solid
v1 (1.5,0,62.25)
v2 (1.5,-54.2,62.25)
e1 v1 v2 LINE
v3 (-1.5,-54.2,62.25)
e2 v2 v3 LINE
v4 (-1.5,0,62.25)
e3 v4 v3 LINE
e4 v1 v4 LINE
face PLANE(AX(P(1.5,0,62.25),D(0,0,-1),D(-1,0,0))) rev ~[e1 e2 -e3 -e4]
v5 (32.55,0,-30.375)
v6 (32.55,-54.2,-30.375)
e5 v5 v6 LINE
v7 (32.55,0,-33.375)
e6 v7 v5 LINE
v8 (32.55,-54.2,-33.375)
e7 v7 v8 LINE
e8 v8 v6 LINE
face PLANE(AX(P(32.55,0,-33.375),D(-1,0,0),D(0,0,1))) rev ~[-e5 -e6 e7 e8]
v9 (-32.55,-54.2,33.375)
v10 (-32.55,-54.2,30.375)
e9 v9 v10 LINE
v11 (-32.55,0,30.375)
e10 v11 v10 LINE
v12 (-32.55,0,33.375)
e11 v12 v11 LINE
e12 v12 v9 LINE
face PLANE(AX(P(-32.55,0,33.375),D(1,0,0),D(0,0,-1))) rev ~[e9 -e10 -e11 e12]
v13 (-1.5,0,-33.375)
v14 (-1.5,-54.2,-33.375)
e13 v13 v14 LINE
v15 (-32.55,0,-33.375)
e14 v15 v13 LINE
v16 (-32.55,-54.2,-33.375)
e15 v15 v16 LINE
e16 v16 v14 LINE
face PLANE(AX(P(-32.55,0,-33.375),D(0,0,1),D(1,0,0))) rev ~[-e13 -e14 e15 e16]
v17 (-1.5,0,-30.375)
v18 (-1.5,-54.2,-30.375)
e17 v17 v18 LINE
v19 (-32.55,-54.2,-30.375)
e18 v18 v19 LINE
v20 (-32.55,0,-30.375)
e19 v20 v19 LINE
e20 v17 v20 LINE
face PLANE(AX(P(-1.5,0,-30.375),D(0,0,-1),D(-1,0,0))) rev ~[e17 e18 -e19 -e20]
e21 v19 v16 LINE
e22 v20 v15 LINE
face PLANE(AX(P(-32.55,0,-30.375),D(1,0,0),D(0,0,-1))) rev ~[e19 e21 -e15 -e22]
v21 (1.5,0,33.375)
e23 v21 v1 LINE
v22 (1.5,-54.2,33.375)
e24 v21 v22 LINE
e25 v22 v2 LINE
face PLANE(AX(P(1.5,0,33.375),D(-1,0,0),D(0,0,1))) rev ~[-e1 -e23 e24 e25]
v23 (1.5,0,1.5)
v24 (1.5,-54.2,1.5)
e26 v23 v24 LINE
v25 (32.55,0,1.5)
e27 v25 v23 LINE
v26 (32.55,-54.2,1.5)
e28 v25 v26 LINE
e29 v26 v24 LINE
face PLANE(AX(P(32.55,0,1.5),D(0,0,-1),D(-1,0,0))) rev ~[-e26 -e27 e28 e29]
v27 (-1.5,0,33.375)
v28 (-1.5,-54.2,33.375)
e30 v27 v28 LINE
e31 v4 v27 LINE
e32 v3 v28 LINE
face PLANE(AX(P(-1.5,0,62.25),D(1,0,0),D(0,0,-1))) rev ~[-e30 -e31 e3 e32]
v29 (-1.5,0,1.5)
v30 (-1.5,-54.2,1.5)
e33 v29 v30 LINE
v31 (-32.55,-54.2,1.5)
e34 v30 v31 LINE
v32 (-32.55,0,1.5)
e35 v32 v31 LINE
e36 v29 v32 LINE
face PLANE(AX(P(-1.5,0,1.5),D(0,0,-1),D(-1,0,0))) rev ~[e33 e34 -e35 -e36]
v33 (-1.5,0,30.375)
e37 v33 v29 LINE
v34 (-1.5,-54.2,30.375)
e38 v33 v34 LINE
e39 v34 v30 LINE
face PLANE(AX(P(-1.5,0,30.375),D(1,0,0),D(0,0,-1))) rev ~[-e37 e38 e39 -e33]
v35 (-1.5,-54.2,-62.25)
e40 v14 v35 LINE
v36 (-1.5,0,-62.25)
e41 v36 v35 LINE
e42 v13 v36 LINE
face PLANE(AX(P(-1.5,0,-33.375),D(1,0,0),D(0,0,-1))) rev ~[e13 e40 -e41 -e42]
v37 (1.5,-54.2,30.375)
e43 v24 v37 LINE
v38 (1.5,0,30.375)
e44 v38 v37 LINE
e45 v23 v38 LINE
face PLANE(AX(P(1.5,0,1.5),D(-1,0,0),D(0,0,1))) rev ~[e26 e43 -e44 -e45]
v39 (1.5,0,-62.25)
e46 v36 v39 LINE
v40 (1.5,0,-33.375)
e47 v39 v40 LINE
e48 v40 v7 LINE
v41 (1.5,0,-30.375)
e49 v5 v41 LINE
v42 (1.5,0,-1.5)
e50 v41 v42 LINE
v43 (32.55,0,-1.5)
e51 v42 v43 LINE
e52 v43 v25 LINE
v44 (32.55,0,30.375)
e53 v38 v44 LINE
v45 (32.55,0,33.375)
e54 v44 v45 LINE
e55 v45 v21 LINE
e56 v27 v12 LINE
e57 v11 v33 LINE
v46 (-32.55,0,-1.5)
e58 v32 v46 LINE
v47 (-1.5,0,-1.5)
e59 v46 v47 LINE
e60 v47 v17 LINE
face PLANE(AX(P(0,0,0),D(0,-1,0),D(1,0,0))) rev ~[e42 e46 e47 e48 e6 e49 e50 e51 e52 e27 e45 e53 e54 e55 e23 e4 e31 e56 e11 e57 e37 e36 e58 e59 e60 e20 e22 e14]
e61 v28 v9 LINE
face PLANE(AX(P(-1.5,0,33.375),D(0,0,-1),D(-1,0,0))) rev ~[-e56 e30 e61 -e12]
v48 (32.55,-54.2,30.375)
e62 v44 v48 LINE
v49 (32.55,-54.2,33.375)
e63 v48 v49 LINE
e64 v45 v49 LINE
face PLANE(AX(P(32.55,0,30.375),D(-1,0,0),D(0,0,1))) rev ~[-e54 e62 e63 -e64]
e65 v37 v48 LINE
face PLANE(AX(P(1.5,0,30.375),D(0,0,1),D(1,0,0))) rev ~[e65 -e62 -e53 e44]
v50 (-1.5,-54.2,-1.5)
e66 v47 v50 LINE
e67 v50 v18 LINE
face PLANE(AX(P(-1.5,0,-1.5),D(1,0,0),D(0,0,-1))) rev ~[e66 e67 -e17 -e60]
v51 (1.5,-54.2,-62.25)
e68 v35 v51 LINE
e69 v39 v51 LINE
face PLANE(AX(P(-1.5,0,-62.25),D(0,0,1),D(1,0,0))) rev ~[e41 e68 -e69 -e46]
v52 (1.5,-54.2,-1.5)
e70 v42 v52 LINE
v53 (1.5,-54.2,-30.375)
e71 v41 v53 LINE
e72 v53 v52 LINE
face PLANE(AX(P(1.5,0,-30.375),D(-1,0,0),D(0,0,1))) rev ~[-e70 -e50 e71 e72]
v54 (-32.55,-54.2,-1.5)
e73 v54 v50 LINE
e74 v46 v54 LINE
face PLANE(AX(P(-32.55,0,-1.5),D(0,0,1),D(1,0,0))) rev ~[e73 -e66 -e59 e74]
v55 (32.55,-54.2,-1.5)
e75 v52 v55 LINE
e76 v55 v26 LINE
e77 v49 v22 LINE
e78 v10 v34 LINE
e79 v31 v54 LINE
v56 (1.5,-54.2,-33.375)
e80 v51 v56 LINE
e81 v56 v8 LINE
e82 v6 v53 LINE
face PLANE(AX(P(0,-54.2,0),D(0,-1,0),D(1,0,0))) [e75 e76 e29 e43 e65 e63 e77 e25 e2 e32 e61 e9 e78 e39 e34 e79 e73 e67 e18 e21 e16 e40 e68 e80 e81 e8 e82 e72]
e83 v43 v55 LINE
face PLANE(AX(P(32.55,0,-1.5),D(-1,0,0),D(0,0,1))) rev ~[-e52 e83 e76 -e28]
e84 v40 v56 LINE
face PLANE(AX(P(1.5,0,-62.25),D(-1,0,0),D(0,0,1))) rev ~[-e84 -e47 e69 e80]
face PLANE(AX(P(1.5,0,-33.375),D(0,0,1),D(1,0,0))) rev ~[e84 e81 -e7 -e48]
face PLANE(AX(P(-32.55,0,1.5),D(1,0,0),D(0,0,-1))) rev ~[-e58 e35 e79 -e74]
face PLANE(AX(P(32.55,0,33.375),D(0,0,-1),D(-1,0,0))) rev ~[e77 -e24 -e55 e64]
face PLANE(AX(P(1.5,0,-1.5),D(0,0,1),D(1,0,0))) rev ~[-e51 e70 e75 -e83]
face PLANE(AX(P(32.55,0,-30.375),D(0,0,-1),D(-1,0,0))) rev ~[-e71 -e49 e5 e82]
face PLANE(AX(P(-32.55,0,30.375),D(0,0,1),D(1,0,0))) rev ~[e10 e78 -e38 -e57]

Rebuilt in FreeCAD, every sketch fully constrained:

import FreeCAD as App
import Part
import Sketcher

doc = App.newDocument("Part")
body = doc.addObject("PartDesign::Body", "Body")

# Sketch on XZ plane
sketch1 = body.newObject("Sketcher::SketchObject", "Sketch")
sketch1.AttachmentSupport = (doc.getObject("XZ_Plane"), [""])
sketch1.MapMode = "FlatFace"
sketch1.addGeometry([
    Part.LineSegment(App.Vector(1.5, 1.5, 0), App.Vector(1.5, 30.375, 0)),  # 0
    Part.LineSegment(App.Vector(1.5, 30.375, 0), App.Vector(32.55, 30.375, 0)),  # 1
    Part.LineSegment(App.Vector(32.55, 30.375, 0), App.Vector(32.55, 33.375, 0)),  # 2
    Part.LineSegment(App.Vector(32.55, 33.375, 0), App.Vector(1.5, 33.375, 0)),  # 3
    Part.LineSegment(App.Vector(1.5, 33.375, 0), App.Vector(1.5, 62.25, 0)),  # 4
    Part.LineSegment(App.Vector(1.5, 62.25, 0), App.Vector(-1.5, 62.25, 0)),  # 5
    Part.LineSegment(App.Vector(-1.5, 62.25, 0), App.Vector(-1.5, 33.375, 0)),  # 6
    Part.LineSegment(App.Vector(-1.5, 33.375, 0), App.Vector(-32.55, 33.375, 0)),  # 7
    Part.LineSegment(App.Vector(-32.55, 33.375, 0), App.Vector(-32.55, 30.375, 0)),  # 8
    Part.LineSegment(App.Vector(-32.55, 30.375, 0), App.Vector(-1.5, 30.375, 0)),  # 9
    Part.LineSegment(App.Vector(-1.5, 30.375, 0), App.Vector(-1.5, 1.5, 0)),  # 10
    Part.LineSegment(App.Vector(-1.5, 1.5, 0), App.Vector(-32.55, 1.5, 0)),  # 11
    Part.LineSegment(App.Vector(-32.55, 1.5, 0), App.Vector(-32.55, -1.5, 0)),  # 12
    Part.LineSegment(App.Vector(-32.55, -1.5, 0), App.Vector(-1.5, -1.5, 0)),  # 13
    Part.LineSegment(App.Vector(-1.5, -1.5, 0), App.Vector(-1.5, -30.375, 0)),  # 14
    Part.LineSegment(App.Vector(-1.5, -30.375, 0), App.Vector(-32.55, -30.375, 0)),  # 15
    Part.LineSegment(App.Vector(-32.55, -30.375, 0), App.Vector(-32.55, -33.375, 0)),  # 16
    Part.LineSegment(App.Vector(-32.55, -33.375, 0), App.Vector(-1.5, -33.375, 0)),  # 17
    Part.LineSegment(App.Vector(-1.5, -33.375, 0), App.Vector(-1.5, -62.25, 0)),  # 18
    Part.LineSegment(App.Vector(-1.5, -62.25, 0), App.Vector(1.5, -62.25, 0)),  # 19
    Part.LineSegment(App.Vector(1.5, -62.25, 0), App.Vector(1.5, -33.375, 0)),  # 20
    Part.LineSegment(App.Vector(1.5, -33.375, 0), App.Vector(32.55, -33.375, 0)),  # 21
    Part.LineSegment(App.Vector(32.55, -33.375, 0), App.Vector(32.55, -30.375, 0)),  # 22
    Part.LineSegment(App.Vector(32.55, -30.375, 0), App.Vector(1.5, -30.375, 0)),  # 23
    Part.LineSegment(App.Vector(1.5, -30.375, 0), App.Vector(1.5, -1.5, 0)),  # 24
    Part.LineSegment(App.Vector(1.5, -1.5, 0), App.Vector(32.55, -1.5, 0)),  # 25
    Part.LineSegment(App.Vector(32.55, -1.5, 0), App.Vector(32.55, 1.5, 0)),  # 26
    Part.LineSegment(App.Vector(32.55, 1.5, 0), App.Vector(1.5, 1.5, 0)),  # 27
], False)
sketch1.addConstraint([
    Sketcher.Constraint("Coincident", 0, 2, 1, 1),
    Sketcher.Constraint("Coincident", 1, 2, 2, 1),
    Sketcher.Constraint("Coincident", 2, 2, 3, 1),
    Sketcher.Constraint("Coincident", 3, 2, 4, 1),
    Sketcher.Constraint("Coincident", 4, 2, 5, 1),
    Sketcher.Constraint("Coincident", 5, 2, 6, 1),
    Sketcher.Constraint("Coincident", 6, 2, 7, 1),
    Sketcher.Constraint("Coincident", 7, 2, 8, 1),
    Sketcher.Constraint("Coincident", 8, 2, 9, 1),
    Sketcher.Constraint("Coincident", 9, 2, 10, 1),
    Sketcher.Constraint("Coincident", 10, 2, 11, 1),
    Sketcher.Constraint("Coincident", 11, 2, 12, 1),
    Sketcher.Constraint("Coincident", 12, 2, 13, 1),
    Sketcher.Constraint("Coincident", 13, 2, 14, 1),
    Sketcher.Constraint("Coincident", 14, 2, 15, 1),
    Sketcher.Constraint("Coincident", 15, 2, 16, 1),
    Sketcher.Constraint("Coincident", 16, 2, 17, 1),
    Sketcher.Constraint("Coincident", 17, 2, 18, 1),
    Sketcher.Constraint("Coincident", 18, 2, 19, 1),
    Sketcher.Constraint("Coincident", 19, 2, 20, 1),
    Sketcher.Constraint("Coincident", 20, 2, 21, 1),
    Sketcher.Constraint("Coincident", 21, 2, 22, 1),
    Sketcher.Constraint("Coincident", 22, 2, 23, 1),
    Sketcher.Constraint("Coincident", 23, 2, 24, 1),
    Sketcher.Constraint("Coincident", 24, 2, 25, 1),
    Sketcher.Constraint("Coincident", 25, 2, 26, 1),
    Sketcher.Constraint("Coincident", 26, 2, 27, 1),
    Sketcher.Constraint("Coincident", 27, 2, 0, 1),
    Sketcher.Constraint("Vertical", 0),
    Sketcher.Constraint("Horizontal", 1),
    Sketcher.Constraint("Vertical", 2),
    Sketcher.Constraint("Horizontal", 3),
    Sketcher.Constraint("Vertical", 4),
    Sketcher.Constraint("Horizontal", 5),
    Sketcher.Constraint("Vertical", 6),
    Sketcher.Constraint("Horizontal", 7),
    Sketcher.Constraint("Vertical", 8),
    Sketcher.Constraint("Horizontal", 9),
    Sketcher.Constraint("Vertical", 10),
    Sketcher.Constraint("Horizontal", 11),
    Sketcher.Constraint("Vertical", 12),
    Sketcher.Constraint("Horizontal", 13),
    Sketcher.Constraint("Vertical", 14),
    Sketcher.Constraint("Horizontal", 15),
    Sketcher.Constraint("Vertical", 16),
    Sketcher.Constraint("Horizontal", 17),
    Sketcher.Constraint("Vertical", 18),
    Sketcher.Constraint("Horizontal", 19),
    Sketcher.Constraint("Vertical", 20),
    Sketcher.Constraint("Horizontal", 21),
    Sketcher.Constraint("Vertical", 22),
    Sketcher.Constraint("Horizontal", 23),
    Sketcher.Constraint("Vertical", 24),
    Sketcher.Constraint("Horizontal", 25),
    Sketcher.Constraint("Vertical", 26),
    Sketcher.Constraint("Horizontal", 27),
    Sketcher.Constraint("Symmetric", 0, 2, 14, 2, -1, 1),
    Sketcher.Constraint("Symmetric", 2, 2, 16, 2, -1, 1),
    Sketcher.Constraint("Symmetric", 4, 2, 18, 2, -1, 1),
    Sketcher.Constraint("Symmetric", 6, 2, 20, 2, -1, 1),
    Sketcher.Constraint("Symmetric", 8, 2, 22, 2, -1, 1),
    Sketcher.Constraint("Symmetric", 10, 2, 24, 2, -1, 1),
    Sketcher.Constraint("Symmetric", 12, 2, 26, 2, -1, 1),
    Sketcher.Constraint("Symmetric", 3, 2, 6, 2, -2),
    Sketcher.Constraint("Symmetric", 1, 2, 8, 2, -2),
    Sketcher.Constraint("Symmetric", 13, 2, 24, 2, -2),
    Sketcher.Constraint("Vertical", 0, 2, 3, 2),
    Sketcher.Constraint("Vertical", 8, 2, 11, 2),
    Sketcher.Constraint("Equal", 19, 2),
    Sketcher.Constraint("Equal", 0, 4),
    Sketcher.Constraint("Equal", 8, 12),
    Sketcher.Constraint("DistanceX", 5, 2, 5, 1, 3.0),
    Sketcher.Constraint("DistanceX", 1, 1, 1, 2, 31.05),
    Sketcher.Constraint("DistanceY", 0, 1, 0, 2, 28.875),
])
pad1 = body.newObject("PartDesign::Pad", "Pad")
pad1.Profile = sketch1
pad1.Length = 54.2

doc.recompute()
